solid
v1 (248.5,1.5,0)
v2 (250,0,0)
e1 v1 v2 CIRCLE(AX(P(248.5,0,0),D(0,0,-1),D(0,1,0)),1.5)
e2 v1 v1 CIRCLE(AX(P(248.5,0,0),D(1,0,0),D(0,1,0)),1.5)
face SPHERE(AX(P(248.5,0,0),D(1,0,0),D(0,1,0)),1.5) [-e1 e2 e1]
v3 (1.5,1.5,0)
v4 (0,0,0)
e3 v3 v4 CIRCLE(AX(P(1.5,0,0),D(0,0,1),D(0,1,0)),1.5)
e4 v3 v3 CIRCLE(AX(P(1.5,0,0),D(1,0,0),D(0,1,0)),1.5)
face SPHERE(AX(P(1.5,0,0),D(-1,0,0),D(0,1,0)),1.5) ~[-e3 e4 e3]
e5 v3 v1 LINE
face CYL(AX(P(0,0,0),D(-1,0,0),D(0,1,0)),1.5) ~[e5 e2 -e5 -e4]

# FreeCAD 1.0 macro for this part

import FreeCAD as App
import Part
import Sketcher
Q = App.Units.Quantity


def edges_at(feature, points):
    """Names of the edges that pass closest to the given points."""
    edges = feature.Shape.Edges
    near = lambda p: min(range(len(edges)), key=lambda i: edges[i].distToShape(Part.Vertex(*p))[0])
    return sorted({f"Edge{near(p) + 1}" for p in points})

doc = App.newDocument("Part")
body = doc.addObject("PartDesign::Body", "Body")

# Sketch on YZ plane
sketch1 = doc.addObject("Sketcher::SketchObject", "Sketch")
body.addObject(sketch1)
sketch1.AttachmentSupport = (doc.YZ_Plane, [""])
sketch1.MapMode = "FlatFace"
sketch1.addGeometry(Part.Circle(App.Vector(0, 0, 0), App.Vector(0, 0, 1), 1.5), False)
sketch1.addConstraint(Sketcher.Constraint("Coincident", 0, 3, -1, 1))
sketch1.addConstraint(Sketcher.Constraint("Diameter", 0, Q("3 mm")))
pad1 = doc.addObject("PartDesign::Pad", "Pad")
body.addObject(pad1)
pad1.Profile = sketch1
pad1.Length = 250
doc.recompute()

fillet = doc.addObject("PartDesign::Fillet", "Fillet")
body.addObject(fillet)
fillet.Base = (pad1, edges_at(pad1, [(250, -1.5, 0), (0, -1.5, 0)]))
fillet.Radius = 1.5

doc.recompute()
